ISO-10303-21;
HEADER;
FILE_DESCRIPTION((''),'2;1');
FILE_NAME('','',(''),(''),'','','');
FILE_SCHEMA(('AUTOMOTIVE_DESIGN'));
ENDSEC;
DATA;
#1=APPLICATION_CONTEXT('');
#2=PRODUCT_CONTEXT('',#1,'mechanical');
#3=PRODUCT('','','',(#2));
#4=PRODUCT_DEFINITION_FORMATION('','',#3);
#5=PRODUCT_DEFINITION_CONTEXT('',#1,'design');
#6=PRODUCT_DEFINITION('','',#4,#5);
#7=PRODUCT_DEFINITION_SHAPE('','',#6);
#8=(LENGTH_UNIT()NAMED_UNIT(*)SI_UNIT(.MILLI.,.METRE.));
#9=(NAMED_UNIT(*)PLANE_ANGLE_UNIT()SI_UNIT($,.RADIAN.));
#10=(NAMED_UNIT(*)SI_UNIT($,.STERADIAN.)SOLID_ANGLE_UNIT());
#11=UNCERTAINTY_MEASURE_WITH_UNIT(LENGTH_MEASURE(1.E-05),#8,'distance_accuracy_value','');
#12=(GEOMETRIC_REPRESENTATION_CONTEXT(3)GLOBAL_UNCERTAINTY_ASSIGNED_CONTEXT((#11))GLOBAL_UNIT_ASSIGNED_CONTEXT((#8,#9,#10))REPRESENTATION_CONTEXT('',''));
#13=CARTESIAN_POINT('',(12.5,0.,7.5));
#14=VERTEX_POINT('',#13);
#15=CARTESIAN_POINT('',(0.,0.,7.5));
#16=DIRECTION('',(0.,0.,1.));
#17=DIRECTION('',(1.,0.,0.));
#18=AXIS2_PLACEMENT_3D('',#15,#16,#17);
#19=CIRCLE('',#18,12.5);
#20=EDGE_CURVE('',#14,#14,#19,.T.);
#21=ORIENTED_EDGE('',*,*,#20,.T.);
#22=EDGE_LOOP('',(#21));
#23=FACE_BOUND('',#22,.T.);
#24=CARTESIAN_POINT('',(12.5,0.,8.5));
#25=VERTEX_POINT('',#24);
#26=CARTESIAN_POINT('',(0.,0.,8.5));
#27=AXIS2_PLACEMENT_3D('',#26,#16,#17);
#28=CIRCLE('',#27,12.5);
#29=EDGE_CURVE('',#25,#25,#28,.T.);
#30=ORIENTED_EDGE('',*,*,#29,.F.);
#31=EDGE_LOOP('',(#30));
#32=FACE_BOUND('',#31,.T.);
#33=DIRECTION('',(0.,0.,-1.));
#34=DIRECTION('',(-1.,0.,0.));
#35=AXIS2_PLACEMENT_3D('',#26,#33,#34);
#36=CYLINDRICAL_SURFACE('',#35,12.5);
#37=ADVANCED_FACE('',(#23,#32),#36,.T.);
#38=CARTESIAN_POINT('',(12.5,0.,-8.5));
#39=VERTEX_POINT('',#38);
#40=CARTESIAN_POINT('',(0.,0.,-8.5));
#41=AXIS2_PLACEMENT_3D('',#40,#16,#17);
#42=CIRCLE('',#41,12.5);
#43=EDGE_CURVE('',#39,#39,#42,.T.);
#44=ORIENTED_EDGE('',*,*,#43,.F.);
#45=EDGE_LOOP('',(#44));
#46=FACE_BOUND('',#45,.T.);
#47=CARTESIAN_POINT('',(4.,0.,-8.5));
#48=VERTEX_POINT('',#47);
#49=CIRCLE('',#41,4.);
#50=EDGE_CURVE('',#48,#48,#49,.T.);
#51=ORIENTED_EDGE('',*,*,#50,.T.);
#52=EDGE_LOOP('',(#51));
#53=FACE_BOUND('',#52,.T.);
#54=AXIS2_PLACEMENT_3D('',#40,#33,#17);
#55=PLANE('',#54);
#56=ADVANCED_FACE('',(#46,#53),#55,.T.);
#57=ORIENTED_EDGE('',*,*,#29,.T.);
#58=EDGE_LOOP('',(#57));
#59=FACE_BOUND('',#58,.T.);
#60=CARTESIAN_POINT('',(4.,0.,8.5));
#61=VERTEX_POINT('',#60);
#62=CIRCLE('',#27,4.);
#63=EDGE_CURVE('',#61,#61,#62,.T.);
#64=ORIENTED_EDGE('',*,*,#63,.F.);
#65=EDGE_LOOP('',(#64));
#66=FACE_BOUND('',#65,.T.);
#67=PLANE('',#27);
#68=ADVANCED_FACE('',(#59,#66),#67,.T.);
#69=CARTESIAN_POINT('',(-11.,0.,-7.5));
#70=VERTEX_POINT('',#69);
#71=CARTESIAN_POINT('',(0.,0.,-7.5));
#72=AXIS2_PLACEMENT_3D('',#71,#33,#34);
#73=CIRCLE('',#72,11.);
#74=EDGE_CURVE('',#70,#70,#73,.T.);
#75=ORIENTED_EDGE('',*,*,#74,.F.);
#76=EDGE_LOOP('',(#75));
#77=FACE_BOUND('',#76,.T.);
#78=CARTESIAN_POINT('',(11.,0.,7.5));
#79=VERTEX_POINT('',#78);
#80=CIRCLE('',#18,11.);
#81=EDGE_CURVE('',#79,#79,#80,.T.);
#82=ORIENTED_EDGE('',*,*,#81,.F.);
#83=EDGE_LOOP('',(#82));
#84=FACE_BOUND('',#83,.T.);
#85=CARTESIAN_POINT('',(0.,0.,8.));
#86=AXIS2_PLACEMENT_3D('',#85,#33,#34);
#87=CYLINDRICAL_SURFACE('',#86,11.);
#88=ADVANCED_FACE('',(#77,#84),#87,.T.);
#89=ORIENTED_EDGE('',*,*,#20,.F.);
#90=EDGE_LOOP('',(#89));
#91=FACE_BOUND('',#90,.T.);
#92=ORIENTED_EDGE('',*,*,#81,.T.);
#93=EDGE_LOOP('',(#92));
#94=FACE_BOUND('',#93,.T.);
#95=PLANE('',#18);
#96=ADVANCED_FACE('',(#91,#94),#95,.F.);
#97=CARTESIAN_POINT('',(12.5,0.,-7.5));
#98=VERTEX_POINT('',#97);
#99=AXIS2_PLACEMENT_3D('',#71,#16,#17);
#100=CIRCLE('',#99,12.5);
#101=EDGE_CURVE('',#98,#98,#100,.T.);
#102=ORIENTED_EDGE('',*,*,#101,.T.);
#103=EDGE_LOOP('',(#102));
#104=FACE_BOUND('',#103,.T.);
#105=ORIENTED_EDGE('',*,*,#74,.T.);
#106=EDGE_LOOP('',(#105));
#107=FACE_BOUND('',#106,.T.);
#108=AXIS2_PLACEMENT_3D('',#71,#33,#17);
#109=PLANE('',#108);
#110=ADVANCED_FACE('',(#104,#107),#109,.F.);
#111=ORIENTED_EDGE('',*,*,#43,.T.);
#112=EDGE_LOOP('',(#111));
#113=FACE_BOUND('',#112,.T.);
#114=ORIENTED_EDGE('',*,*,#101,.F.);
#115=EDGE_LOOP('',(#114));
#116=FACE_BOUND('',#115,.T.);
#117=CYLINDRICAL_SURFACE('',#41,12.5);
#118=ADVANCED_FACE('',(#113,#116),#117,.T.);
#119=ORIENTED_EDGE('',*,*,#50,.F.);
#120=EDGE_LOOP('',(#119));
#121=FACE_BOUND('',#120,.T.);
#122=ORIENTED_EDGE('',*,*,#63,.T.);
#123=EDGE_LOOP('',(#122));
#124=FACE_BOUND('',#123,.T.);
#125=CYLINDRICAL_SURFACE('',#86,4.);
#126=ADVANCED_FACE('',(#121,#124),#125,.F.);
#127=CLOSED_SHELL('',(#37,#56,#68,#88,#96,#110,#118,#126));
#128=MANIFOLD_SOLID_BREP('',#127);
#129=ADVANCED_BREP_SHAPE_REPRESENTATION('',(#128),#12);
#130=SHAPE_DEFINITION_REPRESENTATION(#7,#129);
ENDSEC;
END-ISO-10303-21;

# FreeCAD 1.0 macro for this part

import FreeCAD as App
import Part
import Sketcher

doc = App.newDocument("Part")
body = doc.addObject("PartDesign::Body", "Body")

# Sketch on XY plane
sketch1 = body.newObject("Sketcher::SketchObject", "Sketch")
sketch1.AttachmentSupport = (doc.getObject("XY_Plane"), [""])
sketch1.MapMode = "FlatFace"
sketch1.addGeometry([
    Part.Circle(App.Vector(0, 0, 0), App.Vector(0, 0, 1), 11),
    Part.Circle(App.Vector(0, 0, 0), App.Vector(0, 0, 1), 4),
], False)
sketch1.addConstraint([
    Sketcher.Constraint("Coincident", 0, 3, -1, 1),
    Sketcher.Constraint("Coincident", 1, 3, -1, 1),
    Sketcher.Constraint("Diameter", 0, 22.0),
    Sketcher.Constraint("Diameter", 1, 8.0),
])
pad1 = body.newObject("PartDesign::Pad", "Pad")
pad1.Profile = sketch1
pad1.Length = 16
pad1.Midplane = True

# Sketch on XY plane
sketch2 = body.newObject("Sketcher::SketchObject", "Sketch001")
sketch2.AttachmentSupport = (doc.getObject("XY_Plane"), [""])
sketch2.MapMode = "FlatFace"
sketch2.AttachmentOffset = App.Placement(App.Vector(0, 0, 8), App.Rotation())
sketch2.addGeometry([
    Part.Circle(App.Vector(0, 0, 0), App.Vector(0, 0, 1), 12.5),
    Part.Circle(App.Vector(0, 0, 0), App.Vector(0, 0, 1), 4),
], False)
sketch2.addConstraint([
    Sketcher.Constraint("Coincident", 0, 3, -1, 1),
    Sketcher.Constraint("Coincident", 1, 3, -1, 1),
    Sketcher.Constraint("Diameter", 0, 25.0),
    Sketcher.Constraint("Diameter", 1, 8.0),
])
pad2 = body.newObject("PartDesign::Pad", "Pad001")
pad2.Profile = sketch2
pad2.Length = 1
pad2.Midplane = True
doc.recompute()

mirrored = body.newObject("PartDesign::Mirrored", "Mirrored")
mirrored.Originals = [pad2]
mirrored.MirrorPlane = (doc.getObject("XY_Plane"), [""])
body.Tip = mirrored

doc.recompute()
